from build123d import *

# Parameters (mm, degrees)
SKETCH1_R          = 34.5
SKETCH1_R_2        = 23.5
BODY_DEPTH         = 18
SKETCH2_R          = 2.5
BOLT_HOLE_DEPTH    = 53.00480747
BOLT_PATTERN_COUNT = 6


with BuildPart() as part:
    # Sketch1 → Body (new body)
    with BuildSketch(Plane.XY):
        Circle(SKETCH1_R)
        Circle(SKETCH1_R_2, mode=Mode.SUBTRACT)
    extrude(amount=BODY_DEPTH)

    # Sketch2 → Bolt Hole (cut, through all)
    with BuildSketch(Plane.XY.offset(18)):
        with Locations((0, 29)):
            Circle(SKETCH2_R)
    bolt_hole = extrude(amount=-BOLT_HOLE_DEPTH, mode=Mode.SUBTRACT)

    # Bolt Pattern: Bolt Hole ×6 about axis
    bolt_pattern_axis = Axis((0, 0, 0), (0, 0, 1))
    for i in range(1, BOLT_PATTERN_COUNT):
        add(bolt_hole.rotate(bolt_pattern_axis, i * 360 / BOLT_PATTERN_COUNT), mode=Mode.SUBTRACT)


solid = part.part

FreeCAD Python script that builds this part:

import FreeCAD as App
import Part
import Sketcher

V = App.Vector
Q = App.Units.Quantity

doc = App.newDocument("Part")
body = doc.addObject("PartDesign::Body", "Body")

# Sketch on XY plane
sketch1 = body.newObject("Sketcher::SketchObject", "Sketch")
sketch1.AttachmentSupport = (doc.getObject("XY_Plane"), [""])
sketch1.MapMode = "FlatFace"
sketch1.addGeometry(Part.Circle(V(0, 0, 0), V(0, 0, 1), 34), False)
sketch1.addGeometry(Part.Circle(V(0, 0, 0), V(0, 0, 1), 24), False)
sketch1.addConstraint(Sketcher.Constraint("Coincident", 0, 3, -1, 1))
sketch1.addConstraint(Sketcher.Constraint("Coincident", 1, 3, -1, 1))
sketch1.addConstraint(Sketcher.Constraint("Diameter", 0, Q("69 mm")))
sketch1.addConstraint(Sketcher.Constraint("Diameter", 1, Q("47 mm")))
pad1 = body.newObject("PartDesign::Pad", "Pad")
pad1.Profile = sketch1
pad1.Length = 18

# Sketch on XY plane
sketch2 = body.newObject("Sketcher::SketchObject", "Sketch001")
sketch2.AttachmentSupport = (doc.getObject("XY_Plane"), [""])
sketch2.MapMode = "FlatFace"
sketch2.AttachmentOffset = App.Placement(V(0, 0, 18), App.Rotation())
sketch2.addGeometry(Part.Circle(V(0, 29, 0), V(0, 0, 1), 2.5), False)
sketch2.addConstraint(Sketcher.Constraint("PointOnObject", 0, 3, -2))
sketch2.addConstraint(Sketcher.Constraint("Diameter", 0, Q("5 mm")))
sketch2.addConstraint(Sketcher.Constraint("DistanceY", -1, 1, 0, 3, Q("29 mm")))
pocket1 = body.newObject("PartDesign::Pocket", "Pocket")
pocket1.Profile = sketch2
pocket1.Type = "ThroughAll"
doc.recompute()

polarpattern = body.newObject("PartDesign::PolarPattern", "PolarPattern")
polarpattern.Originals = [pocket1]
polarpattern.Axis = (doc.getObject("Z_Axis"), [""])
polarpattern.Angle = 360
polarpattern.Occurrences = 6
body.Tip = polarpattern

doc.recompute()
